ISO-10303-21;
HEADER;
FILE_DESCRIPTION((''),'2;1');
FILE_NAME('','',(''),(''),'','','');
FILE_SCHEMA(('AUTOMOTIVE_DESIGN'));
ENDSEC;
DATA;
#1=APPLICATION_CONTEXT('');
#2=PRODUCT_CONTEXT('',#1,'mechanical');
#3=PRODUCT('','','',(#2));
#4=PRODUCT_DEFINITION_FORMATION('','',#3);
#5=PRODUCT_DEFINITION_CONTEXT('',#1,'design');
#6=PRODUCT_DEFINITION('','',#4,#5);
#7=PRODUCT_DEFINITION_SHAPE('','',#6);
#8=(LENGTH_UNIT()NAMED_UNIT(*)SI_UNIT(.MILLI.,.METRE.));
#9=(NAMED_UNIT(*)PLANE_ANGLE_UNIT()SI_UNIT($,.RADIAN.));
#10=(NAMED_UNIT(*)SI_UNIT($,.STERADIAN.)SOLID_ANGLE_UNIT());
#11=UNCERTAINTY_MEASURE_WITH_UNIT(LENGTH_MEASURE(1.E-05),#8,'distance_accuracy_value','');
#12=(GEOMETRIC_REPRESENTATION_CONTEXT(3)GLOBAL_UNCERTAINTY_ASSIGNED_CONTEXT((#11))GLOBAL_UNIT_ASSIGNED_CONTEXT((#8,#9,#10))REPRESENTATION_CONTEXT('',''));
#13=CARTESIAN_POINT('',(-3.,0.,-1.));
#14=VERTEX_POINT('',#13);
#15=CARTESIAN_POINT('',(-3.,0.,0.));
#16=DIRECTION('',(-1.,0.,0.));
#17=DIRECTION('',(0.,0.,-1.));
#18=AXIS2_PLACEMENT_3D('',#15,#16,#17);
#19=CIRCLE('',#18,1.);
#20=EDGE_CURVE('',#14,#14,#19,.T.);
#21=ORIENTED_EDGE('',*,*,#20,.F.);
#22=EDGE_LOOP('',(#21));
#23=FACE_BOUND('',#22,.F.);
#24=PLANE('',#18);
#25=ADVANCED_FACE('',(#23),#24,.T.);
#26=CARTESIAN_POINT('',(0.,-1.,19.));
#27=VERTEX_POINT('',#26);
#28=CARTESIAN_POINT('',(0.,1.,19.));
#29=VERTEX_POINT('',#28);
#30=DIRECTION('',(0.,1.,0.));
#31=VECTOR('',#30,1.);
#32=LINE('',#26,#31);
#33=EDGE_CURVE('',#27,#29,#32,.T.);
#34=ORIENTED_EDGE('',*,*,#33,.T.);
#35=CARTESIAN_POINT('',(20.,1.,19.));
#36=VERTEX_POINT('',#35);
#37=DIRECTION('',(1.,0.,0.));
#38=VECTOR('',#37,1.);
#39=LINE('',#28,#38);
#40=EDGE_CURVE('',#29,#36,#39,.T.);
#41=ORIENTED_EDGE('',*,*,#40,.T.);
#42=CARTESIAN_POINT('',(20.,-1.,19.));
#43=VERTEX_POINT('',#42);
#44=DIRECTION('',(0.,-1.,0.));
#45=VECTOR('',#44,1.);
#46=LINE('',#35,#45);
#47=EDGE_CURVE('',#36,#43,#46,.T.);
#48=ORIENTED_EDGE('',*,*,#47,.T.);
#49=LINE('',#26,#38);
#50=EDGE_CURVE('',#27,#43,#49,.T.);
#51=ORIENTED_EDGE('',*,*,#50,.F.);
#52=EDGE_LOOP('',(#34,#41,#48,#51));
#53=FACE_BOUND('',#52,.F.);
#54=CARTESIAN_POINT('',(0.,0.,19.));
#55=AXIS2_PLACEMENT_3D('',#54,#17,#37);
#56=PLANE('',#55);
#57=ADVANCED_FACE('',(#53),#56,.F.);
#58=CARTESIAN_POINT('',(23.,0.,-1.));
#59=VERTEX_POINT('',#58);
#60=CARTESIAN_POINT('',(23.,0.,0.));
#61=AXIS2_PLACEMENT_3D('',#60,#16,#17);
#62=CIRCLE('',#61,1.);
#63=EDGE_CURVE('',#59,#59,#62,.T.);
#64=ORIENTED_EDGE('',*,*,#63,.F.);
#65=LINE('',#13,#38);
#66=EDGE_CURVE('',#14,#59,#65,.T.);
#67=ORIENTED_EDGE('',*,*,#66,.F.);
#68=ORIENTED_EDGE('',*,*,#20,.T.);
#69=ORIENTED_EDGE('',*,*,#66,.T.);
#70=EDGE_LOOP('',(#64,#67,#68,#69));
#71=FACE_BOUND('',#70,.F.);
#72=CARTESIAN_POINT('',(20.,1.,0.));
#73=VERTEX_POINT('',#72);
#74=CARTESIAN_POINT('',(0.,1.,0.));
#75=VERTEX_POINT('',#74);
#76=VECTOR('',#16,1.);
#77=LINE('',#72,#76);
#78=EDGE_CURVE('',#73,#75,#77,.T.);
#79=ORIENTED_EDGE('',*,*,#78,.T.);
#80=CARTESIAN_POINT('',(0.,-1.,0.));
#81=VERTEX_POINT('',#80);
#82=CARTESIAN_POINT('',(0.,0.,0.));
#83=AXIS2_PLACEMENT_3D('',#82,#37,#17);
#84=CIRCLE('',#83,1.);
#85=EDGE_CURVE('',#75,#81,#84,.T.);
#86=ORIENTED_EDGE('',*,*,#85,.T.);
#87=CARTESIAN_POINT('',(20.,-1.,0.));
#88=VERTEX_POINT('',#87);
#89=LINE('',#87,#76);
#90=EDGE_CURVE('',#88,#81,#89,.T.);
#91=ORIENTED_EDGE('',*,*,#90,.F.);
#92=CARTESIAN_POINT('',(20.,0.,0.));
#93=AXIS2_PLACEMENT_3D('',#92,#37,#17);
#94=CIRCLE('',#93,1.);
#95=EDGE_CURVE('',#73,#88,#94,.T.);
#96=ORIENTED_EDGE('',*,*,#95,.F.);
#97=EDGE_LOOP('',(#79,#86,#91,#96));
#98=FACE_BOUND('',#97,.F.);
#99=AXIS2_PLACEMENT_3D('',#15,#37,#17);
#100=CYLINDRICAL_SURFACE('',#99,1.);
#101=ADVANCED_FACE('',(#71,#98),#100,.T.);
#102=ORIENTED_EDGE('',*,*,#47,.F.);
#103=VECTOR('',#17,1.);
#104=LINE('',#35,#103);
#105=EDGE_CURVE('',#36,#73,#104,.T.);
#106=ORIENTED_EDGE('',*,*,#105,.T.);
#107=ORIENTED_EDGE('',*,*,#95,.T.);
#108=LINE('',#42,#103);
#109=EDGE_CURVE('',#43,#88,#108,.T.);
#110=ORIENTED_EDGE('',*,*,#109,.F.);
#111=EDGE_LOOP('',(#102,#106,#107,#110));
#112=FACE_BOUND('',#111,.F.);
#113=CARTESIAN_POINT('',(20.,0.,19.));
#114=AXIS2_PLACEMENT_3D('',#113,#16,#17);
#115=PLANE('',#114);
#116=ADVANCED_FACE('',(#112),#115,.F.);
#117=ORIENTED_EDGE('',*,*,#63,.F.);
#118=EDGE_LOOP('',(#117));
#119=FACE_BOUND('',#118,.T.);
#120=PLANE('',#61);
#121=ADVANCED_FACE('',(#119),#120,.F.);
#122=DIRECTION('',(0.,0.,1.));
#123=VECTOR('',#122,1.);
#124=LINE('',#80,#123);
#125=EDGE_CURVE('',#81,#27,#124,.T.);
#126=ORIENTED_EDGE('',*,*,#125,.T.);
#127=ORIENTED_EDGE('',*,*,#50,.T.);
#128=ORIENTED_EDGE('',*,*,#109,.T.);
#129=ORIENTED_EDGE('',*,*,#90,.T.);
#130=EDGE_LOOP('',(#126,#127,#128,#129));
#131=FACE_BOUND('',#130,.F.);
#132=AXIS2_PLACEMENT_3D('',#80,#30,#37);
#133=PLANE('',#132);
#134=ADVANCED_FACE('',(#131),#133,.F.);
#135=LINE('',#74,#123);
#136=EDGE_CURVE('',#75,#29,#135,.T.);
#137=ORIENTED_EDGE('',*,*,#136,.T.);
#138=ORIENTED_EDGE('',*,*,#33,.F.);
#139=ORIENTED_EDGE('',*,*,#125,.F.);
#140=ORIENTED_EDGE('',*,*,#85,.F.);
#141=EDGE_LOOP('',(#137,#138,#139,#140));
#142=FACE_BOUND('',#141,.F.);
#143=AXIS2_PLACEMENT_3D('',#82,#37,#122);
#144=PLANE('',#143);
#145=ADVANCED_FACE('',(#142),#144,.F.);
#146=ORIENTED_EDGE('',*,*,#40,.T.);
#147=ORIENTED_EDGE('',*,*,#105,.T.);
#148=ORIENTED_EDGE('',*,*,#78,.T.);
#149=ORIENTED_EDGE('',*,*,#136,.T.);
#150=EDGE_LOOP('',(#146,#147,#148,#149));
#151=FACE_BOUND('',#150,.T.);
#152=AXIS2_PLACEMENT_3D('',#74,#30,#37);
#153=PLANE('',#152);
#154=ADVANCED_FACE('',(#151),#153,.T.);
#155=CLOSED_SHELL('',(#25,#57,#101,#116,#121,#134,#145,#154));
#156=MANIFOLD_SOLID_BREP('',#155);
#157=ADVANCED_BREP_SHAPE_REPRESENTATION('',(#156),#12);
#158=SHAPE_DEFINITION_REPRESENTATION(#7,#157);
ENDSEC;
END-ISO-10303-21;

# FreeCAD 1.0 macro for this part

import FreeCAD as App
import Part
import Sketcher
from FreeCAD import Vector
Q = App.Units.Quantity


def add_polygon(sketch, points):
    """Adds a closed chain of lines whose ends are joined by coincident constraints."""
    first, n = sketch.GeometryCount, len(points)
    for a, b in zip(points, points[1:] + points[:1]):
        sketch.addGeometry(Part.LineSegment(App.Vector(*a, 0), App.Vector(*b, 0)), False)
    for i in range(n):
        sketch.addConstraint(Sketcher.Constraint("Coincident", first + i, 2, first + (i + 1) % n, 1))

doc = App.newDocument("Part")
body = doc.addObject("PartDesign::Body", "Body")

# Sketch on XZ plane
sketch1 = doc.addObject("Sketcher::SketchObject", "Sketch")
body.addObject(sketch1)
sketch1.AttachmentSupport = (doc.XZ_Plane, [""])
sketch1.MapMode = "FlatFace"
add_polygon(sketch1, [(-3, 0), (23, 0), (23, -1), (-3, -1)])  # lines 0-3
sketch1.addConstraint(Sketcher.Constraint("Horizontal", 0))
sketch1.addConstraint(Sketcher.Constraint("Vertical", 1))
sketch1.addConstraint(Sketcher.Constraint("Horizontal", 2))
sketch1.addConstraint(Sketcher.Constraint("Vertical", 3))
sketch1.addConstraint(Sketcher.Constraint("PointOnObject", 0, 2, -1))
sketch1.addConstraint(Sketcher.Constraint("DistanceY", 1, 2, 1, 1, Q("1 mm")))
sketch1.addConstraint(Sketcher.Constraint("DistanceX", 2, 2, -1, 1, Q("3 mm")))
sketch1.addConstraint(Sketcher.Constraint("DistanceX", 0, 1, 0, 2, Q("26 mm")))
revolution = doc.addObject("PartDesign::Revolution", "Revolution")
body.addObject(revolution)
revolution.Profile = sketch1
revolution.ReferenceAxis = (sketch1, ["H_Axis"])
revolution.Angle = 360

# Sketch on XZ plane
sketch2 = doc.addObject("Sketcher::SketchObject", "Sketch001")
body.addObject(sketch2)
sketch2.AttachmentSupport = (doc.XZ_Plane, [""])
sketch2.MapMode = "FlatFace"
add_polygon(sketch2, [(20, 0), (0, 0), (0, 19), (20, 19)])  # lines 0-3
sketch2.addConstraint(Sketcher.Constraint("Horizontal", 0))
sketch2.addConstraint(Sketcher.Constraint("Vertical", 1))
sketch2.addConstraint(Sketcher.Constraint("Horizontal", 2))
sketch2.addConstraint(Sketcher.Constraint("Vertical", 3))
sketch2.addConstraint(Sketcher.Constraint("Coincident", 0, 2, -1, 1))
sketch2.addConstraint(Sketcher.Constraint("DistanceX", 0, 2, 0, 1, Q("20 mm")))
sketch2.addConstraint(Sketcher.Constraint("DistanceY", 1, 1, 1, 2, Q("19 mm")))
pad1 = doc.addObject("PartDesign::Pad", "Pad")
body.addObject(pad1)
pad1.Profile = sketch2
pad1.Length = 2
pad1.Midplane = True

doc.recompute()
